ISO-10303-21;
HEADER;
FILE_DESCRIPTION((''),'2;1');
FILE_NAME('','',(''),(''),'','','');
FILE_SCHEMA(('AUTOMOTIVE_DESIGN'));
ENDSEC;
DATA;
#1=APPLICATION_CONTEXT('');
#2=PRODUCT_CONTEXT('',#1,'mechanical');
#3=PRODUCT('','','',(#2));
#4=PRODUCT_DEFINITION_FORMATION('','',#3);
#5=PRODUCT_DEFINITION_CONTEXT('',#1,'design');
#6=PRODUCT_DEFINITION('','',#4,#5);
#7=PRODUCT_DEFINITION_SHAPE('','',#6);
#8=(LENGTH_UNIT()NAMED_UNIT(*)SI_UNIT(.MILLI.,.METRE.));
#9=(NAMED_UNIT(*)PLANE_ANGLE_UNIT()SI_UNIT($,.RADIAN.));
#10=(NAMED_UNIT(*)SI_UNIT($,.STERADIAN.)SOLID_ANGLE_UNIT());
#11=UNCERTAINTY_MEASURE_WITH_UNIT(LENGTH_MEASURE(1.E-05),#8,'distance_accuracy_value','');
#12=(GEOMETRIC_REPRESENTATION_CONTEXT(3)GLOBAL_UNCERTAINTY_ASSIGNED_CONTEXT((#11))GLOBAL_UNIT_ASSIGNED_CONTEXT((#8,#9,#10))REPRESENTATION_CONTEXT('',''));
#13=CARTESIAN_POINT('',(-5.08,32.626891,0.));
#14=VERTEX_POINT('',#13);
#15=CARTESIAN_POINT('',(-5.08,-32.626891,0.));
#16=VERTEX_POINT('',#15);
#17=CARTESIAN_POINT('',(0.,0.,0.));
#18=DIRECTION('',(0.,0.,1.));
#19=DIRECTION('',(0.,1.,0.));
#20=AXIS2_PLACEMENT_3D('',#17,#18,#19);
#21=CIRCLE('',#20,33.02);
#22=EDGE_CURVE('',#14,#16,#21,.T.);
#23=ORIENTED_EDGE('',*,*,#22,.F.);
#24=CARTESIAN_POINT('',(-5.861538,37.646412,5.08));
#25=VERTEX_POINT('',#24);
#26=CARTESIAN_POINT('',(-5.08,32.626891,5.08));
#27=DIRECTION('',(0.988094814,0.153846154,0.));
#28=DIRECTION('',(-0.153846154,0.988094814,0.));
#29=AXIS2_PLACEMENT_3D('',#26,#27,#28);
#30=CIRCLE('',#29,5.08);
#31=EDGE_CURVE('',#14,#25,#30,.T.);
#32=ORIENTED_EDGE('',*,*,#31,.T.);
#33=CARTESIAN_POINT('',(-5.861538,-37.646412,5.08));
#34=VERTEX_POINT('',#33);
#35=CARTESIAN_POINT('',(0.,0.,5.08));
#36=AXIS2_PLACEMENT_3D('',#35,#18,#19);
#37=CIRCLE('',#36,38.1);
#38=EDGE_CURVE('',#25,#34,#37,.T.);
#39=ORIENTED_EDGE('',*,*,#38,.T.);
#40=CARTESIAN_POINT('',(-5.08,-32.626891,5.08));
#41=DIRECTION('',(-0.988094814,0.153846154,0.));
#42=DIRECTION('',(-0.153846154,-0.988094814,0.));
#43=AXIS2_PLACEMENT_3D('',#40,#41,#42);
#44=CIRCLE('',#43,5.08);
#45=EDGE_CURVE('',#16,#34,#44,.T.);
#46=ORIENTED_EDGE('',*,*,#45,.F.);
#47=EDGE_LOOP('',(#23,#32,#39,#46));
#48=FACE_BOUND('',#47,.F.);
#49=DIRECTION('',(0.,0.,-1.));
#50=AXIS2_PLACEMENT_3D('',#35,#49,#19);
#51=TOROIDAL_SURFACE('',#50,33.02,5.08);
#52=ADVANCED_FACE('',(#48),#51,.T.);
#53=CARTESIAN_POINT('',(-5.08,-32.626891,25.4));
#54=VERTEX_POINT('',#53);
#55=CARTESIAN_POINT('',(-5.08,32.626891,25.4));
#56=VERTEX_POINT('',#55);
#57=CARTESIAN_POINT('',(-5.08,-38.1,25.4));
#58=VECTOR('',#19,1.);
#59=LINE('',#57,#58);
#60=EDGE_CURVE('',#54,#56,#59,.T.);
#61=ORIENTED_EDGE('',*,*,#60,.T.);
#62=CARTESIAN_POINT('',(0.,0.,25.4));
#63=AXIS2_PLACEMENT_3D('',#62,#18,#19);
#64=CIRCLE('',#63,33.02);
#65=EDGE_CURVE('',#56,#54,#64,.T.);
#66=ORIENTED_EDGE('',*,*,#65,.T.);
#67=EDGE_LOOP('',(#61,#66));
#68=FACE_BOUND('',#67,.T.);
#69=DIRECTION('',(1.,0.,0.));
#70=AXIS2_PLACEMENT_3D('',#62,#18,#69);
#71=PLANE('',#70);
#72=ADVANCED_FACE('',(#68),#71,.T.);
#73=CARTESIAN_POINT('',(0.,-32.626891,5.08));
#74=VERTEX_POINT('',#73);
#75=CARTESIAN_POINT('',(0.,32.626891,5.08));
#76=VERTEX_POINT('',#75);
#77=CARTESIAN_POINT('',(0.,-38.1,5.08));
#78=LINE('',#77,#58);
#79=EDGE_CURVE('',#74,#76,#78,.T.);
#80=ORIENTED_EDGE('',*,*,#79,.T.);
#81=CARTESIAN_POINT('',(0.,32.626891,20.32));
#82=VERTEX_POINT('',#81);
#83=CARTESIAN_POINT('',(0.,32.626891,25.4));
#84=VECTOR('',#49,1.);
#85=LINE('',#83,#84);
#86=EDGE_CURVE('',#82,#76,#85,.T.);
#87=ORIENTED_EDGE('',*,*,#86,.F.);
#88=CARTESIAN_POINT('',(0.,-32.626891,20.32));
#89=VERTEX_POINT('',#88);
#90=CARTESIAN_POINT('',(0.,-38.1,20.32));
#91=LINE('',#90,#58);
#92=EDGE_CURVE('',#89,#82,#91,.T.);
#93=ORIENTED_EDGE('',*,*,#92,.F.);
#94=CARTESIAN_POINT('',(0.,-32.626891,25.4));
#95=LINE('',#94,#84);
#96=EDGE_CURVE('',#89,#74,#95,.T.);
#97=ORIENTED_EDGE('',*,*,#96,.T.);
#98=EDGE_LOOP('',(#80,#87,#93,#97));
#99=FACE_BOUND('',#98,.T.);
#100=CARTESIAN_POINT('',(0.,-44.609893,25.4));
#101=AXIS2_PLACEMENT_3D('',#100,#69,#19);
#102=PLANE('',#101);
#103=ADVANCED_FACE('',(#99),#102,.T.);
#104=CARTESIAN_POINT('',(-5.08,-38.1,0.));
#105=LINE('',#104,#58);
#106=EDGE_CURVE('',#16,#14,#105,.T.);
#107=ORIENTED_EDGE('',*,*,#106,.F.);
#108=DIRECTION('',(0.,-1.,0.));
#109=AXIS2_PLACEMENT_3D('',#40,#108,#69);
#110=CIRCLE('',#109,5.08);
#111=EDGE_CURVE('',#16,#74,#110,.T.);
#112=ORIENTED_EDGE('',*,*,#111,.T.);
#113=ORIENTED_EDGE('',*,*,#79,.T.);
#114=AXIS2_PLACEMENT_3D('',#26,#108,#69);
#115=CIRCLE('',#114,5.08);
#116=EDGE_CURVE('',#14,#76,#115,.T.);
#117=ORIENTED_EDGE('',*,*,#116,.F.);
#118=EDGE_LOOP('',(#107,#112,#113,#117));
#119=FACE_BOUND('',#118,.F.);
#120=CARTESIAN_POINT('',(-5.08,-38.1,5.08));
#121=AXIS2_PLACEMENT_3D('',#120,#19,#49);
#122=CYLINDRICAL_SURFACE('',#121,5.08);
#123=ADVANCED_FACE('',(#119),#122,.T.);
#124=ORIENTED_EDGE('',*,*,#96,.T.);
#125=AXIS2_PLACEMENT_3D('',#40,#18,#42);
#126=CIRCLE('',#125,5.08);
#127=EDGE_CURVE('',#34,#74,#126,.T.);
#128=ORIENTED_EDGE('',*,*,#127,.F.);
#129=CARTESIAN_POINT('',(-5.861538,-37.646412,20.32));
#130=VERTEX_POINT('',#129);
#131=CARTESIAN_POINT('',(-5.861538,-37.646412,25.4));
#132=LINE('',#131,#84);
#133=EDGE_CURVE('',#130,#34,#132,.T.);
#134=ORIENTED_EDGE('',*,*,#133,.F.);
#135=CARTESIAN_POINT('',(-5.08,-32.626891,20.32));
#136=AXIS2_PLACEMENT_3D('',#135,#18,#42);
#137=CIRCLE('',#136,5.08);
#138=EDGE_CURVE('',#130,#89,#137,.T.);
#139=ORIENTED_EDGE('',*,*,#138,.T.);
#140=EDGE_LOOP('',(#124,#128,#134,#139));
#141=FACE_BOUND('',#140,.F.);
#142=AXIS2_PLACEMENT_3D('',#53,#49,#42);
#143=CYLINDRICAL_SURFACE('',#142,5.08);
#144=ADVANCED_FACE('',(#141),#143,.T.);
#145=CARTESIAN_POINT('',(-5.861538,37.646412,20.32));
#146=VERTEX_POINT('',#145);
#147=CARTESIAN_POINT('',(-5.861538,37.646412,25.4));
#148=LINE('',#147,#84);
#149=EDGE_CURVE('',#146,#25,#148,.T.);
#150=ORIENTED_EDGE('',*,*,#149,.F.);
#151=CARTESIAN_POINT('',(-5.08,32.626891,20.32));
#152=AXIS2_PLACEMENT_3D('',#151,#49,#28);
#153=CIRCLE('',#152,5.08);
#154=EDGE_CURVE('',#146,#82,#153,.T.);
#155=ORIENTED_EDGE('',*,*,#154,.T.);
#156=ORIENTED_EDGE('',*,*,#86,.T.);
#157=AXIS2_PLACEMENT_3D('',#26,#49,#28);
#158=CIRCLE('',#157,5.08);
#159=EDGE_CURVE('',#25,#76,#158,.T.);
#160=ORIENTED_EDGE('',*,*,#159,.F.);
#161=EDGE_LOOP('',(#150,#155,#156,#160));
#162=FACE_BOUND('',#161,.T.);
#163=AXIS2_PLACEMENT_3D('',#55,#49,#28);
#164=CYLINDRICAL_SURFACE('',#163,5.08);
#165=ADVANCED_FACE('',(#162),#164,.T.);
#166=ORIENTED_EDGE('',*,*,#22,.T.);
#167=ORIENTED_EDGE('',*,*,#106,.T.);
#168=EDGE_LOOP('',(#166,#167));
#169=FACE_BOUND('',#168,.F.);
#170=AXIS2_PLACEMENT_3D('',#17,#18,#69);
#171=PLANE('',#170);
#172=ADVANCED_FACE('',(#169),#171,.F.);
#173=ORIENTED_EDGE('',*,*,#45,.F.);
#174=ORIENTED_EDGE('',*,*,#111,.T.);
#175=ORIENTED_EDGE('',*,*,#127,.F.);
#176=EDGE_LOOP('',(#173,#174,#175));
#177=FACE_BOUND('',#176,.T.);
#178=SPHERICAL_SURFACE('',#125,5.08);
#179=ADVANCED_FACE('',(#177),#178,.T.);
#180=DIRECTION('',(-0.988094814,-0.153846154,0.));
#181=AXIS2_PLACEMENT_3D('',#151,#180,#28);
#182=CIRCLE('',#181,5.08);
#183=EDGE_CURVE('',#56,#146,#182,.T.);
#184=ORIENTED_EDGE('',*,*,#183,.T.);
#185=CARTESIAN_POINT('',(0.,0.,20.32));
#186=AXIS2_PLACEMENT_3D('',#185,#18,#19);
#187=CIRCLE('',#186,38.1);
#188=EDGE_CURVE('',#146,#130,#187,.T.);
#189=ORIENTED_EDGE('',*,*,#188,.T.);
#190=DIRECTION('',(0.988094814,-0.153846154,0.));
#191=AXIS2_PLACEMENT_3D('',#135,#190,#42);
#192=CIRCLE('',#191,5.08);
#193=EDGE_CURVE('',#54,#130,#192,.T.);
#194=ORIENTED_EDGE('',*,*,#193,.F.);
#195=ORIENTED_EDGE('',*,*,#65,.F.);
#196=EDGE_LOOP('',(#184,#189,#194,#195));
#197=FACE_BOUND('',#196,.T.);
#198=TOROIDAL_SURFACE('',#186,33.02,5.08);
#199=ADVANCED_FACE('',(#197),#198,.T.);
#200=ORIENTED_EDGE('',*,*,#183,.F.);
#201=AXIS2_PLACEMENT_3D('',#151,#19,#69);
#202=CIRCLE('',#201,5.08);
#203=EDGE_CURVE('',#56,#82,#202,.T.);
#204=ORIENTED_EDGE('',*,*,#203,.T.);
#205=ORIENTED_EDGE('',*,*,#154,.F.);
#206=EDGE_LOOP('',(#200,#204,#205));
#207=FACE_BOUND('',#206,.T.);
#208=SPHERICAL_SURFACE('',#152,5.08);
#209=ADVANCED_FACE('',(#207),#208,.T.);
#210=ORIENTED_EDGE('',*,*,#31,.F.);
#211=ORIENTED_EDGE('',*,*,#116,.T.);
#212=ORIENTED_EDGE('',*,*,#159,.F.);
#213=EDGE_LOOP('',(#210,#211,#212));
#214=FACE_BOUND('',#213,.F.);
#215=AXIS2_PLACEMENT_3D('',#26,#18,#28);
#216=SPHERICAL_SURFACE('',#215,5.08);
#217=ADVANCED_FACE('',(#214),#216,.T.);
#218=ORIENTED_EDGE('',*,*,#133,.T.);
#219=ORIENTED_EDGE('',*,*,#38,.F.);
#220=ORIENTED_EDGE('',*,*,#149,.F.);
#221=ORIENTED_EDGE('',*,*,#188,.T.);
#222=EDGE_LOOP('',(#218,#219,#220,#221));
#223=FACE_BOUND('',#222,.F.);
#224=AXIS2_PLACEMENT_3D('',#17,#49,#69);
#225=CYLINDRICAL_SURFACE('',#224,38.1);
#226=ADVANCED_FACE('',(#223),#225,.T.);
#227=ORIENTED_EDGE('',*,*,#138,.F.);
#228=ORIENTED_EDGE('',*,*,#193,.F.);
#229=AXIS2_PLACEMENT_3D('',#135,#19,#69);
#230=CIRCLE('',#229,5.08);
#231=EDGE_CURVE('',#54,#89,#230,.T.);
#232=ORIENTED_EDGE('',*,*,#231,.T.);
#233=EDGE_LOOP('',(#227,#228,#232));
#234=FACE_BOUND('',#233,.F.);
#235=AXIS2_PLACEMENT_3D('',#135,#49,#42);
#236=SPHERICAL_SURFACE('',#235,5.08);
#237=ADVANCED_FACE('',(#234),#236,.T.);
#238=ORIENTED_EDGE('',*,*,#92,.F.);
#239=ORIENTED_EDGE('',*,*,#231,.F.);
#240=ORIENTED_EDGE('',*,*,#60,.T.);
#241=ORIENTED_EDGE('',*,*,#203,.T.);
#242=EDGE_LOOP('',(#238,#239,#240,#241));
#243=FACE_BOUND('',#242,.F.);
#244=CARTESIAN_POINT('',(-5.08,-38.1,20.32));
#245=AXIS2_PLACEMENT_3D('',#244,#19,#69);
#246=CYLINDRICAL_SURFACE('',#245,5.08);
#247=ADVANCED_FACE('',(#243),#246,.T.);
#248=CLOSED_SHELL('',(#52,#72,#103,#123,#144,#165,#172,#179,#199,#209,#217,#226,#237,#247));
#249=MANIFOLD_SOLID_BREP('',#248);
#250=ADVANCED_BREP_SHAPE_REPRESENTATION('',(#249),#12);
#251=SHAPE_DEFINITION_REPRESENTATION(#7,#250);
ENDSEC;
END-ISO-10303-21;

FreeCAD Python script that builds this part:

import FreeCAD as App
import Part
import Sketcher
Q = App.Units.Quantity


def add_polygon(sketch, points):
    """Adds a closed chain of lines whose ends are joined by coincident constraints."""
    first, n = sketch.GeometryCount, len(points)
    for a, b in zip(points, points[1:] + points[:1]):
        sketch.addGeometry(Part.LineSegment(App.Vector(*a, 0), App.Vector(*b, 0)), False)
    for i in range(n):
        sketch.addConstraint(Sketcher.Constraint("Coincident", first + i, 2, first + (i + 1) % n, 1))

doc = App.newDocument("Part")
params = doc.addObject("Spreadsheet::Sheet", "Params")
for row, (alias, value) in enumerate([
    ("sketch1_diameter", "3 in"),
    ("pad1_length", "1 in"),
    ("pocket1_length", "1 in"),
    ("fillet_radius", "0.2 in"),
], start=1):
    params.set(f"A{row}", alias)
    params.set(f"B{row}", "=" + value)
    params.setAlias(f"B{row}", alias)

body = doc.addObject("PartDesign::Body", "Body")

# Sketch on XY plane
sketch1 = doc.addObject("Sketcher::SketchObject", "Sketch")
body.addObject(sketch1)
sketch1.AttachmentSupport = (doc.XY_Plane, [""])
sketch1.MapMode = "FlatFace"
sketch1.addGeometry(Part.Circle(App.Vector(0, 0, 0), App.Vector(0, 0, 1), 38), False)
sketch1.addConstraint(Sketcher.Constraint("Coincident", 0, 3, -1, 1))
sketch1.addConstraint(Sketcher.Constraint("Diameter", 0, Q("3 in")))
sketch1.setExpression("Constraints[1]", "Params.sketch1_diameter")
pad1 = doc.addObject("PartDesign::Pad", "Pad")
body.addObject(pad1)
pad1.Profile = sketch1
pad1.setExpression("Length", "Params.pad1_length")

# Sketch on XY plane
sketch2 = doc.addObject("Sketcher::SketchObject", "Sketch001")
body.addObject(sketch2)
sketch2.AttachmentSupport = (doc.XY_Plane, [""])
sketch2.MapMode = "FlatFace"
sketch2.AttachmentOffset = App.Placement(App.Vector(0, 0, 1 * 25.4), App.Rotation())
add_polygon(sketch2, [(0, 41), (0, -45), (44, -45), (44, 41)])  # lines 0-3
sketch2.addConstraint(Sketcher.Constraint("Vertical", 0))
sketch2.addConstraint(Sketcher.Constraint("Horizontal", 1))
sketch2.addConstraint(Sketcher.Constraint("Vertical", 2))
sketch2.addConstraint(Sketcher.Constraint("Horizontal", 3))
sketch2.addConstraint(Sketcher.Constraint("PointOnObject", 0, 2, -2))
sketch2.addConstraint(Sketcher.Constraint("DistanceX", 1, 1, 1, 2, Q("44.03428 mm")))
sketch2.addConstraint(Sketcher.Constraint("DistanceY", 0, 2, 0, 1, Q("85.478309 mm")))
sketch2.addConstraint(Sketcher.Constraint("DistanceY", 0, 2, -1, 1, Q("44.609893 mm")))
pocket1 = doc.addObject("PartDesign::Pocket", "Pocket")
body.addObject(pocket1)
pocket1.Profile = sketch2
pocket1.setExpression("Length", "Params.pocket1_length")
doc.recompute()

fillet = doc.addObject("PartDesign::Fillet", "Fillet")
body.addObject(fillet)
fillet.Base = (pocket1, ["Edge1"])
fillet.UseAllEdges = True
fillet.setExpression("Radius", "Params.fillet_radius")

doc.recompute()
